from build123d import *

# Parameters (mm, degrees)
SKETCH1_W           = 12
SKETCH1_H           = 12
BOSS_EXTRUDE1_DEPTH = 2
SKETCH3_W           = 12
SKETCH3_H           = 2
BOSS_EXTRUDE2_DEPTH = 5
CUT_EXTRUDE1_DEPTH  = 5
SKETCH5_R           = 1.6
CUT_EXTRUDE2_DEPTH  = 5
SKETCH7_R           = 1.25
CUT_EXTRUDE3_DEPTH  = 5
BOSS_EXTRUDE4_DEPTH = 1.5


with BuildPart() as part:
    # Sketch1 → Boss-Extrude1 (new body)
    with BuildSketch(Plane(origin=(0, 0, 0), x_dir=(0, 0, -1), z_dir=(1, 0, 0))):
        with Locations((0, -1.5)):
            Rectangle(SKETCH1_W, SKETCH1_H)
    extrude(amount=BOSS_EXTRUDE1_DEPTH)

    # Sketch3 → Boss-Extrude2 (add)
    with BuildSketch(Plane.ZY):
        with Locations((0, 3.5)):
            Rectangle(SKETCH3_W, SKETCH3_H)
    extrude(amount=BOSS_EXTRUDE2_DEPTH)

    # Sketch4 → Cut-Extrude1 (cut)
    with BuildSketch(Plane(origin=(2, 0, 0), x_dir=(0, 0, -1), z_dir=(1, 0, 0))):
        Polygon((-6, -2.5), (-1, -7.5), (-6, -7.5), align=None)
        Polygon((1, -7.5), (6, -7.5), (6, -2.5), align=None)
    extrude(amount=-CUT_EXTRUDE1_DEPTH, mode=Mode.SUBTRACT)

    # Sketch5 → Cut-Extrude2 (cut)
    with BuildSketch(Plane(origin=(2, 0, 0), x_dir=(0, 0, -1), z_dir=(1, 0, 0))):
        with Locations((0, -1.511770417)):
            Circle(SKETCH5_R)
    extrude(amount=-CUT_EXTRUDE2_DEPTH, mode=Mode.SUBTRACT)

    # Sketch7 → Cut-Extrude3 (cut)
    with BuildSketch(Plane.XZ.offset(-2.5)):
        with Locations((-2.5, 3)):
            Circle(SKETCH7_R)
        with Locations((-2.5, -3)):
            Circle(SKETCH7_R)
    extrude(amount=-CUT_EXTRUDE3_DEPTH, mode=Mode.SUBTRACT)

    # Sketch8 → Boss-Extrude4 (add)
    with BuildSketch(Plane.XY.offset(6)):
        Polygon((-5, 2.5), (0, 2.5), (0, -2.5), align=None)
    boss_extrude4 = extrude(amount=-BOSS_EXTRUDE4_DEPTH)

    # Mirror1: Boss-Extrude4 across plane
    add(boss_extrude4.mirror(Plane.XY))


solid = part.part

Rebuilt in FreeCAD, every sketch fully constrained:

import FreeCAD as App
import Part
import Sketcher


def add_polygon(sketch, points):
    """Adds a closed chain of lines whose ends are joined by coincident constraints."""
    first, n = sketch.GeometryCount, len(points)
    for a, b in zip(points, points[1:] + points[:1]):
        sketch.addGeometry(Part.LineSegment(App.Vector(*a, 0), App.Vector(*b, 0)), False)
    for i in range(n):
        sketch.addConstraint(Sketcher.Constraint("Coincident", first + i, 2, first + (i + 1) % n, 1))

doc = App.newDocument("Part")
body = doc.addObject("PartDesign::Body", "Body")

sketch1 = body.newObject("Sketcher::SketchObject", "Sketch")
sketch1.AttachmentSupport = (doc.getObject("YZ_Plane"), [""])
sketch1.MapMode = "FlatFace"
add_polygon(sketch1, [(4, 6), (-8, 6), (-8, -6), (4, -6)])
sketch1.addConstraint(Sketcher.Constraint("Horizontal", 0))
sketch1.addConstraint(Sketcher.Constraint("Vertical", 1))
sketch1.addConstraint(Sketcher.Constraint("Horizontal", 2))
sketch1.addConstraint(Sketcher.Constraint("Vertical", 3))
sketch1.addConstraint(Sketcher.Constraint("Equal", 2, 1))
sketch1.addConstraint(Sketcher.Constraint("DistanceX", 0, 2, 0, 1, 12.0))
sketch1.addConstraint(Sketcher.Constraint("DistanceY", -1, 1, 0, 2, 6.0))
sketch1.addConstraint(Sketcher.Constraint("DistanceX", 0, 2, -1, 1, 7.5))
pad1 = body.newObject("PartDesign::Pad", "Pad")
pad1.Profile = sketch1
pad1.Length = 2

sketch2 = body.newObject("Sketcher::SketchObject", "Sketch001")
sketch2.AttachmentSupport = (doc.getObject("YZ_Plane"), [""])
sketch2.MapMode = "FlatFace"
add_polygon(sketch2, [(4.5, -6), (2.5, -6), (2.5, 6), (4.5, 6)])
sketch2.addConstraint(Sketcher.Constraint("Horizontal", 0))
sketch2.addConstraint(Sketcher.Constraint("Vertical", 1))
sketch2.addConstraint(Sketcher.Constraint("Horizontal", 2))
sketch2.addConstraint(Sketcher.Constraint("Vertical", 3))
sketch2.addConstraint(Sketcher.Constraint("DistanceX", 0, 2, 0, 1, 2.0))
sketch2.addConstraint(Sketcher.Constraint("DistanceY", 1, 1, 1, 2, 12.0))
sketch2.addConstraint(Sketcher.Constraint("DistanceY", 0, 2, -1, 1, 6.0))
sketch2.addConstraint(Sketcher.Constraint("DistanceX", -1, 1, 0, 2, 2.5))
pad2 = body.newObject("PartDesign::Pad", "Pad001")
pad2.Profile = sketch2
pad2.Length = 5
pad2.Reversed = True

sketch3 = body.newObject("Sketcher::SketchObject", "Sketch002")
sketch3.AttachmentSupport = (doc.getObject("YZ_Plane"), [""])
sketch3.MapMode = "FlatFace"
sketch3.AttachmentOffset = App.Placement(App.Vector(0, 0, 2), App.Rotation())
add_polygon(sketch3, [(-8, 1), (-2, 6), (-8, 6)])
add_polygon(sketch3, [(-8, -1), (-8, -6), (-2, -6)])
sketch3.addConstraint(Sketcher.Constraint("Horizontal", 1))
sketch3.addConstraint(Sketcher.Constraint("Vertical", 2))
sketch3.addConstraint(Sketcher.Constraint("Vertical", 3))
sketch3.addConstraint(Sketcher.Constraint("Horizontal", 4))
sketch3.addConstraint(Sketcher.Constraint("Symmetric", 1, 2, 3, 2, -1))
sketch3.addConstraint(Sketcher.Constraint("Perpendicular", 0, 5))
sketch3.addConstraint(Sketcher.Constraint("Vertical", 0, 2, 4, 2))
sketch3.addConstraint(Sketcher.Constraint("Equal", 4, 2))
sketch3.addConstraint(Sketcher.Constraint("DistanceX", 1, 2, 1, 1, 5.0))
sketch3.addConstraint(Sketcher.Constraint("DistanceY", -1, 1, 0, 2, 6.0))
sketch3.addConstraint(Sketcher.Constraint("DistanceX", 0, 2, -1, 1, 2.5))
pocket1 = body.newObject("PartDesign::Pocket", "Pocket")
pocket1.Profile = sketch3
pocket1.Length = 5

sketch4 = body.newObject("Sketcher::SketchObject", "Sketch003")
sketch4.AttachmentSupport = (doc.getObject("YZ_Plane"), [""])
sketch4.MapMode = "FlatFace"
sketch4.AttachmentOffset = App.Placement(App.Vector(0, 0, 2), App.Rotation())
sketch4.addGeometry(Part.Circle(App.Vector(-1.5, 0, 0), App.Vector(0, 0, 1), 1.6), False)
sketch4.addConstraint(Sketcher.Constraint("PointOnObject", 0, 3, -1))
sketch4.addConstraint(Sketcher.Constraint("Diameter", 0, 3.2))
sketch4.addConstraint(Sketcher.Constraint("DistanceX", 0, 3, -1, 1, 1.51177))
pocket2 = body.newObject("PartDesign::Pocket", "Pocket001")
pocket2.Profile = sketch4
pocket2.Length = 5

sketch5 = body.newObject("Sketcher::SketchObject", "Sketch004")
sketch5.AttachmentSupport = (doc.getObject("XZ_Plane"), [""])
sketch5.MapMode = "FlatFace"
sketch5.AttachmentOffset = App.Placement(App.Vector(0, 0, -2.5), App.Rotation())
sketch5.addGeometry(Part.Circle(App.Vector(-2.5, 3, 0), App.Vector(0, 0, 1), 1.2), False)
sketch5.addGeometry(Part.Circle(App.Vector(-2.5, -3, 0), App.Vector(0, 0, 1), 1.2), False)
sketch5.addConstraint(Sketcher.Constraint("Equal", 0, 1))
sketch5.addConstraint(Sketcher.Constraint("Symmetric", 0, 3, 1, 3, -1))
sketch5.addConstraint(Sketcher.Constraint("Diameter", 0, 2.5))
sketch5.addConstraint(Sketcher.Constraint("DistanceY", -1, 1, 0, 3, 3.0))
sketch5.addConstraint(Sketcher.Constraint("DistanceX", 0, 3, -1, 1, 2.5))
pocket3 = body.newObject("PartDesign::Pocket", "Pocket002")
pocket3.Profile = sketch5
pocket3.Length = 5

sketch6 = body.newObject("Sketcher::SketchObject", "Sketch005")
sketch6.AttachmentSupport = (doc.getObject("XY_Plane"), [""])
sketch6.MapMode = "FlatFace"
sketch6.AttachmentOffset = App.Placement(App.Vector(0, 0, 6), App.Rotation())
add_polygon(sketch6, [(0, 2), (-5, 2), (0, -2)])
sketch6.addConstraint(Sketcher.Constraint("Horizontal", 0))
sketch6.addConstraint(Sketcher.Constraint("Vertical", 2))
sketch6.addConstraint(Sketcher.Constraint("Symmetric", 1, 2, 2, 2, -1, 1))
sketch6.addConstraint(Sketcher.Constraint("Equal", 0, 2))
sketch6.addConstraint(Sketcher.Constraint("DistanceX", 0, 2, 0, 1, 5.0))
pad3 = body.newObject("PartDesign::Pad", "Pad002")
pad3.Profile = sketch6
pad3.Length = 1.5
pad3.Reversed = True
doc.recompute()

mirrored = body.newObject("PartDesign::Mirrored", "Mirrored")
mirrored.Originals = [pad3]
mirrored.MirrorPlane = (doc.getObject("XY_Plane"), [""])
body.Tip = mirrored

doc.recompute()
